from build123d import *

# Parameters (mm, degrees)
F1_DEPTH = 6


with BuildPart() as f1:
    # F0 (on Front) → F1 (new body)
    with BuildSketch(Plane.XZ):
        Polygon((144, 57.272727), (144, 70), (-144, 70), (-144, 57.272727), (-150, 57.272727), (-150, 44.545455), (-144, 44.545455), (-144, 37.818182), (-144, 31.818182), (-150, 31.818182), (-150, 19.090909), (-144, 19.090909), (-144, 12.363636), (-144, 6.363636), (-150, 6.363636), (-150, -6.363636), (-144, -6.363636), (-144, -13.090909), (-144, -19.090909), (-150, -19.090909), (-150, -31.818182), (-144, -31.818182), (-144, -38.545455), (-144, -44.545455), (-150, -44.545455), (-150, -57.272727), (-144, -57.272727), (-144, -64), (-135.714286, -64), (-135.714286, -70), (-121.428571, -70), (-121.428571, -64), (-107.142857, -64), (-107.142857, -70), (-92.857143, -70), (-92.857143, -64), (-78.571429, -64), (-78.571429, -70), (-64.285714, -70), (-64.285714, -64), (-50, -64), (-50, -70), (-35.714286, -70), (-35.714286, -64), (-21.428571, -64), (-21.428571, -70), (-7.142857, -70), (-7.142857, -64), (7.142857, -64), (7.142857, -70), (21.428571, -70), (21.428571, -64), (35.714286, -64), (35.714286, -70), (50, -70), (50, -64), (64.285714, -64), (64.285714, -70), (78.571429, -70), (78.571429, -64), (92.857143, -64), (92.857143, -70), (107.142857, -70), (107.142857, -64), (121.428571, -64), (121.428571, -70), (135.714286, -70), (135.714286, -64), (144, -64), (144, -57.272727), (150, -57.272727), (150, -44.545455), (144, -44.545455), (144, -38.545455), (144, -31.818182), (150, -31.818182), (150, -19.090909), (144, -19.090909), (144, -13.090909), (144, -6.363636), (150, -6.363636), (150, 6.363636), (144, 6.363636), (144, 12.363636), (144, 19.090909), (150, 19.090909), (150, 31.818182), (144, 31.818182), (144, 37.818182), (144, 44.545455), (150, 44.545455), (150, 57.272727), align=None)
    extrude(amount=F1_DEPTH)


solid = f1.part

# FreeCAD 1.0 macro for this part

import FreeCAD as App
import Part
import Sketcher
from FreeCAD import Vector

doc = App.newDocument("Part")
body = doc.addObject("PartDesign::Body", "Body")

sketch1 = body.newObject("Sketcher::SketchObject", "Sketch")
sketch1.AttachmentSupport = (doc.getObject("XZ_Plane"), [""])
sketch1.MapMode = "FlatFace"
sketch1.addGeometry([
    Part.LineSegment(Vector(144, 57.272727, 0), Vector(144, 70, 0)),
    Part.LineSegment(Vector(144, 70, 0), Vector(-144, 70, 0)),
    Part.LineSegment(Vector(-144, 70, 0), Vector(-144, 57.272727, 0)),
    Part.LineSegment(Vector(-144, 57.272727, 0), Vector(-150, 57.272727, 0)),
    Part.LineSegment(Vector(-150, 57.272727, 0), Vector(-150, 44.545455, 0)),
    Part.LineSegment(Vector(-150, 44.545455, 0), Vector(-144, 44.545455, 0)),
    Part.LineSegment(Vector(-144, 44.545455, 0), Vector(-144, 31.818182, 0)),
    Part.LineSegment(Vector(-144, 31.818182, 0), Vector(-150, 31.818182, 0)),
    Part.LineSegment(Vector(-150, 31.818182, 0), Vector(-150, 19.090909, 0)),
    Part.LineSegment(Vector(-150, 19.090909, 0), Vector(-144, 19.090909, 0)),
    Part.LineSegment(Vector(-144, 19.090909, 0), Vector(-144, 6.363636, 0)),
    Part.LineSegment(Vector(-144, 6.363636, 0), Vector(-150, 6.363636, 0)),
    Part.LineSegment(Vector(-150, 6.363636, 0), Vector(-150, -6.363636, 0)),
    Part.LineSegment(Vector(-150, -6.363636, 0), Vector(-144, -6.363636, 0)),
    Part.LineSegment(Vector(-144, -6.363636, 0), Vector(-144, -19.090909, 0)),
    Part.LineSegment(Vector(-144, -19.090909, 0), Vector(-150, -19.090909, 0)),
    Part.LineSegment(Vector(-150, -19.090909, 0), Vector(-150, -31.818182, 0)),
    Part.LineSegment(Vector(-150, -31.818182, 0), Vector(-144, -31.818182, 0)),
    Part.LineSegment(Vector(-144, -31.818182, 0), Vector(-144, -44.545455, 0)),
    Part.LineSegment(Vector(-144, -44.545455, 0), Vector(-150, -44.545455, 0)),
    Part.LineSegment(Vector(-150, -44.545455, 0), Vector(-150, -57.272727, 0)),
    Part.LineSegment(Vector(-150, -57.272727, 0), Vector(-144, -57.272727, 0)),
    Part.LineSegment(Vector(-144, -57.272727, 0), Vector(-144, -64, 0)),
    Part.LineSegment(Vector(-144, -64, 0), Vector(-135.714286, -64, 0)),
    Part.LineSegment(Vector(-135.714286, -64, 0), Vector(-135.714286, -70, 0)),
    Part.LineSegment(Vector(-135.714286, -70, 0), Vector(-121.428571, -70, 0)),
    Part.LineSegment(Vector(-121.428571, -70, 0), Vector(-121.428571, -64, 0)),
    Part.LineSegment(Vector(-121.428571, -64, 0), Vector(-107.142857, -64, 0)),
    Part.LineSegment(Vector(-107.142857, -64, 0), Vector(-107.142857, -70, 0)),
    Part.LineSegment(Vector(-107.142857, -70, 0), Vector(-92.857143, -70, 0)),
    Part.LineSegment(Vector(-92.857143, -70, 0), Vector(-92.857143, -64, 0)),
    Part.LineSegment(Vector(-92.857143, -64, 0), Vector(-78.571429, -64, 0)),
    Part.LineSegment(Vector(-78.571429, -64, 0), Vector(-78.571429, -70, 0)),
    Part.LineSegment(Vector(-78.571429, -70, 0), Vector(-64.285714, -70, 0)),
    Part.LineSegment(Vector(-64.285714, -70, 0), Vector(-64.285714, -64, 0)),
    Part.LineSegment(Vector(-64.285714, -64, 0), Vector(-50, -64, 0)),
    Part.LineSegment(Vector(-50, -64, 0), Vector(-50, -70, 0)),
    Part.LineSegment(Vector(-50, -70, 0), Vector(-35.714286, -70, 0)),
    Part.LineSegment(Vector(-35.714286, -70, 0), Vector(-35.714286, -64, 0)),
    Part.LineSegment(Vector(-35.714286, -64, 0), Vector(-21.428571, -64, 0)),
    Part.LineSegment(Vector(-21.428571, -64, 0), Vector(-21.428571, -70, 0)),
    Part.LineSegment(Vector(-21.428571, -70, 0), Vector(-7.142857, -70, 0)),
    Part.LineSegment(Vector(-7.142857, -70, 0), Vector(-7.142857, -64, 0)),
    Part.LineSegment(Vector(-7.142857, -64, 0), Vector(7.142857, -64, 0)),
    Part.LineSegment(Vector(7.142857, -64, 0), Vector(7.142857, -70, 0)),
    Part.LineSegment(Vector(7.142857, -70, 0), Vector(21.428571, -70, 0)),
    Part.LineSegment(Vector(21.428571, -70, 0), Vector(21.428571, -64, 0)),
    Part.LineSegment(Vector(21.428571, -64, 0), Vector(35.714286, -64, 0)),
    Part.LineSegment(Vector(35.714286, -64, 0), Vector(35.714286, -70, 0)),
    Part.LineSegment(Vector(35.714286, -70, 0), Vector(50, -70, 0)),
    Part.LineSegment(Vector(50, -70, 0), Vector(50, -64, 0)),
    Part.LineSegment(Vector(50, -64, 0), Vector(64.285714, -64, 0)),
    Part.LineSegment(Vector(64.285714, -64, 0), Vector(64.285714, -70, 0)),
    Part.LineSegment(Vector(64.285714, -70, 0), Vector(78.571429, -70, 0)),
    Part.LineSegment(Vector(78.571429, -70, 0), Vector(78.571429, -64, 0)),
    Part.LineSegment(Vector(78.571429, -64, 0), Vector(92.857143, -64, 0)),
    Part.LineSegment(Vector(92.857143, -64, 0), Vector(92.857143, -70, 0)),
    Part.LineSegment(Vector(92.857143, -70, 0), Vector(107.142857, -70, 0)),
    Part.LineSegment(Vector(107.142857, -70, 0), Vector(107.142857, -64, 0)),
    Part.LineSegment(Vector(107.142857, -64, 0), Vector(121.428571, -64, 0)),
    Part.LineSegment(Vector(121.428571, -64, 0), Vector(121.428571, -70, 0)),
    Part.LineSegment(Vector(121.428571, -70, 0), Vector(135.714286, -70, 0)),
    Part.LineSegment(Vector(135.714286, -70, 0), Vector(135.714286, -64, 0)),
    Part.LineSegment(Vector(135.714286, -64, 0), Vector(144, -64, 0)),
    Part.LineSegment(Vector(144, -64, 0), Vector(144, -57.272727, 0)),
    Part.LineSegment(Vector(144, -57.272727, 0), Vector(150, -57.272727, 0)),
    Part.LineSegment(Vector(150, -57.272727, 0), Vector(150, -44.545455, 0)),
    Part.LineSegment(Vector(150, -44.545455, 0), Vector(144, -44.545455, 0)),
    Part.LineSegment(Vector(144, -44.545455, 0), Vector(144, -31.818182, 0)),
    Part.LineSegment(Vector(144, -31.818182, 0), Vector(150, -31.818182, 0)),
    Part.LineSegment(Vector(150, -31.818182, 0), Vector(150, -19.090909, 0)),
    Part.LineSegment(Vector(150, -19.090909, 0), Vector(144, -19.090909, 0)),
    Part.LineSegment(Vector(144, -19.090909, 0), Vector(144, -6.363636, 0)),
    Part.LineSegment(Vector(144, -6.363636, 0), Vector(150, -6.363636, 0)),
    Part.LineSegment(Vector(150, -6.363636, 0), Vector(150, 6.363636, 0)),
    Part.LineSegment(Vector(150, 6.363636, 0), Vector(144, 6.363636, 0)),
    Part.LineSegment(Vector(144, 6.363636, 0), Vector(144, 19.090909, 0)),
    Part.LineSegment(Vector(144, 19.090909, 0), Vector(150, 19.090909, 0)),
    Part.LineSegment(Vector(150, 19.090909, 0), Vector(150, 31.818182, 0)),
    Part.LineSegment(Vector(150, 31.818182, 0), Vector(144, 31.818182, 0)),
    Part.LineSegment(Vector(144, 31.818182, 0), Vector(144, 44.545455, 0)),
    Part.LineSegment(Vector(144, 44.545455, 0), Vector(150, 44.545455, 0)),
    Part.LineSegment(Vector(150, 44.545455, 0), Vector(150, 57.272727, 0)),
    Part.LineSegment(Vector(150, 57.272727, 0), Vector(144, 57.272727, 0)),
], False)
sketch1.addConstraint([
    Sketcher.Constraint("Coincident", 0, 2, 1, 1),
    Sketcher.Constraint("Coincident", 1, 2, 2, 1),
    Sketcher.Constraint("Coincident", 2, 2, 3, 1),
    Sketcher.Constraint("Coincident", 3, 2, 4, 1),
    Sketcher.Constraint("Coincident", 4, 2, 5, 1),
    Sketcher.Constraint("Coincident", 5, 2, 6, 1),
    Sketcher.Constraint("Coincident", 6, 2, 7, 1),
    Sketcher.Constraint("Coincident", 7, 2, 8, 1),
    Sketcher.Constraint("Coincident", 8, 2, 9, 1),
    Sketcher.Constraint("Coincident", 9, 2, 10, 1),
    Sketcher.Constraint("Coincident", 10, 2, 11, 1),
    Sketcher.Constraint("Coincident", 11, 2, 12, 1),
    Sketcher.Constraint("Coincident", 12, 2, 13, 1),
    Sketcher.Constraint("Coincident", 13, 2, 14, 1),
    Sketcher.Constraint("Coincident", 14, 2, 15, 1),
    Sketcher.Constraint("Coincident", 15, 2, 16, 1),
    Sketcher.Constraint("Coincident", 16, 2, 17, 1),
    Sketcher.Constraint("Coincident", 17, 2, 18, 1),
    Sketcher.Constraint("Coincident", 18, 2, 19, 1),
    Sketcher.Constraint("Coincident", 19, 2, 20, 1),
    Sketcher.Constraint("Coincident", 20, 2, 21, 1),
    Sketcher.Constraint("Coincident", 21, 2, 22, 1),
    Sketcher.Constraint("Coincident", 22, 2, 23, 1),
    Sketcher.Constraint("Coincident", 23, 2, 24, 1),
    Sketcher.Constraint("Coincident", 24, 2, 25, 1),
    Sketcher.Constraint("Coincident", 25, 2, 26, 1),
    Sketcher.Constraint("Coincident", 26, 2, 27, 1),
    Sketcher.Constraint("Coincident", 27, 2, 28, 1),
    Sketcher.Constraint("Coincident", 28, 2, 29, 1),
    Sketcher.Constraint("Coincident", 29, 2, 30, 1),
    Sketcher.Constraint("Coincident", 30, 2, 31, 1),
    Sketcher.Constraint("Coincident", 31, 2, 32, 1),
    Sketcher.Constraint("Coincident", 32, 2, 33, 1),
    Sketcher.Constraint("Coincident", 33, 2, 34, 1),
    Sketcher.Constraint("Coincident", 34, 2, 35, 1),
    Sketcher.Constraint("Coincident", 35, 2, 36, 1),
    Sketcher.Constraint("Coincident", 36, 2, 37, 1),
    Sketcher.Constraint("Coincident", 37, 2, 38, 1),
    Sketcher.Constraint("Coincident", 38, 2, 39, 1),
    Sketcher.Constraint("Coincident", 39, 2, 40, 1),
    Sketcher.Constraint("Coincident", 40, 2, 41, 1),
    Sketcher.Constraint("Coincident", 41, 2, 42, 1),
    Sketcher.Constraint("Coincident", 42, 2, 43, 1),
    Sketcher.Constraint("Coincident", 43, 2, 44, 1),
    Sketcher.Constraint("Coincident", 44, 2, 45, 1),
    Sketcher.Constraint("Coincident", 45, 2, 46, 1),
    Sketcher.Constraint("Coincident", 46, 2, 47, 1),
    Sketcher.Constraint("Coincident", 47, 2, 48, 1),
    Sketcher.Constraint("Coincident", 48, 2, 49, 1),
    Sketcher.Constraint("Coincident", 49, 2, 50, 1),
    Sketcher.Constraint("Coincident", 50, 2, 51, 1),
    Sketcher.Constraint("Coincident", 51, 2, 52, 1),
    Sketcher.Constraint("Coincident", 52, 2, 53, 1),
    Sketcher.Constraint("Coincident", 53, 2, 54, 1),
    Sketcher.Constraint("Coincident", 54, 2, 55, 1),
    Sketcher.Constraint("Coincident", 55, 2, 56, 1),
    Sketcher.Constraint("Coincident", 56, 2, 57, 1),
    Sketcher.Constraint("Coincident", 57, 2, 58, 1),
    Sketcher.Constraint("Coincident", 58, 2, 59, 1),
    Sketcher.Constraint("Coincident", 59, 2, 60, 1),
    Sketcher.Constraint("Coincident", 60, 2, 61, 1),
    Sketcher.Constraint("Coincident", 61, 2, 62, 1),
    Sketcher.Constraint("Coincident", 62, 2, 63, 1),
    Sketcher.Constraint("Coincident", 63, 2, 64, 1),
    Sketcher.Constraint("Coincident", 64, 2, 65, 1),
    Sketcher.Constraint("Coincident", 65, 2, 66, 1),
    Sketcher.Constraint("Coincident", 66, 2, 67, 1),
    Sketcher.Constraint("Coincident", 67, 2, 68, 1),
    Sketcher.Constraint("Coincident", 68, 2, 69, 1),
    Sketcher.Constraint("Coincident", 69, 2, 70, 1),
    Sketcher.Constraint("Coincident", 70, 2, 71, 1),
    Sketcher.Constraint("Coincident", 71, 2, 72, 1),
    Sketcher.Constraint("Coincident", 72, 2, 73, 1),
    Sketcher.Constraint("Coincident", 73, 2, 74, 1),
    Sketcher.Constraint("Coincident", 74, 2, 75, 1),
    Sketcher.Constraint("Coincident", 75, 2, 76, 1),
    Sketcher.Constraint("Coincident", 76, 2, 77, 1),
    Sketcher.Constraint("Coincident", 77, 2, 78, 1),
    Sketcher.Constraint("Coincident", 78, 2, 79, 1),
    Sketcher.Constraint("Coincident", 79, 2, 80, 1),
    Sketcher.Constraint("Coincident", 80, 2, 81, 1),
    Sketcher.Constraint("Coincident", 81, 2, 82, 1),
    Sketcher.Constraint("Coincident", 82, 2, 83, 1),
    Sketcher.Constraint("Coincident", 83, 2, 0, 1),
    Sketcher.Constraint("Vertical", 0),
    Sketcher.Constraint("Horizontal", 1),
    Sketcher.Constraint("Vertical", 2),
    Sketcher.Constraint("Horizontal", 3),
    Sketcher.Constraint("Vertical", 4),
    Sketcher.Constraint("Horizontal", 5),
    Sketcher.Constraint("Vertical", 6),
    Sketcher.Constraint("Horizontal", 7),
    Sketcher.Constraint("Vertical", 8),
    Sketcher.Constraint("Horizontal", 9),
    Sketcher.Constraint("Vertical", 10),
    Sketcher.Constraint("Horizontal", 11),
    Sketcher.Constraint("Vertical", 12),
    Sketcher.Constraint("Horizontal", 13),
    Sketcher.Constraint("Vertical", 14),
    Sketcher.Constraint("Horizontal", 15),
    Sketcher.Constraint("Vertical", 16),
    Sketcher.Constraint("Horizontal", 17),
    Sketcher.Constraint("Vertical", 18),
    Sketcher.Constraint("Horizontal", 19),
    Sketcher.Constraint("Vertical", 20),
    Sketcher.Constraint("Horizontal", 21),
    Sketcher.Constraint("Vertical", 22),
    Sketcher.Constraint("Horizontal", 23),
    Sketcher.Constraint("Vertical", 24),
    Sketcher.Constraint("Horizontal", 25),
    Sketcher.Constraint("Vertical", 26),
    Sketcher.Constraint("Horizontal", 27),
    Sketcher.Constraint("Vertical", 28),
    Sketcher.Constraint("Horizontal", 29),
    Sketcher.Constraint("Vertical", 30),
    Sketcher.Constraint("Horizontal", 31),
    Sketcher.Constraint("Vertical", 32),
    Sketcher.Constraint("Horizontal", 33),
    Sketcher.Constraint("Vertical", 34),
    Sketcher.Constraint("Horizontal", 35),
    Sketcher.Constraint("Vertical", 36),
    Sketcher.Constraint("Horizontal", 37),
    Sketcher.Constraint("Vertical", 38),
    Sketcher.Constraint("Horizontal", 39),
    Sketcher.Constraint("Vertical", 40),
    Sketcher.Constraint("Horizontal", 41),
    Sketcher.Constraint("Vertical", 42),
    Sketcher.Constraint("Horizontal", 43),
    Sketcher.Constraint("Vertical", 44),
    Sketcher.Constraint("Horizontal", 45),
    Sketcher.Constraint("Vertical", 46),
    Sketcher.Constraint("Horizontal", 47),
    Sketcher.Constraint("Vertical", 48),
    Sketcher.Constraint("Horizontal", 49),
    Sketcher.Constraint("Vertical", 50),
    Sketcher.Constraint("Horizontal", 51),
    Sketcher.Constraint("Vertical", 52),
    Sketcher.Constraint("Horizontal", 53),
    Sketcher.Constraint("Vertical", 54),
    Sketcher.Constraint("Horizontal", 55),
    Sketcher.Constraint("Vertical", 56),
    Sketcher.Constraint("Horizontal", 57),
    Sketcher.Constraint("Vertical", 58),
    Sketcher.Constraint("Horizontal", 59),
    Sketcher.Constraint("Vertical", 60),
    Sketcher.Constraint("Horizontal", 61),
    Sketcher.Constraint("Vertical", 62),
    Sketcher.Constraint("Horizontal", 63),
    Sketcher.Constraint("Vertical", 64),
    Sketcher.Constraint("Horizontal", 65),
    Sketcher.Constraint("Vertical", 66),
    Sketcher.Constraint("Horizontal", 67),
    Sketcher.Constraint("Vertical", 68),
    Sketcher.Constraint("Horizontal", 69),
    Sketcher.Constraint("Vertical", 70),
    Sketcher.Constraint("Horizontal", 71),
    Sketcher.Constraint("Vertical", 72),
    Sketcher.Constraint("Horizontal", 73),
    Sketcher.Constraint("Vertical", 74),
    Sketcher.Constraint("Horizontal", 75),
    Sketcher.Constraint("Vertical", 76),
    Sketcher.Constraint("Horizontal", 77),
    Sketcher.Constraint("Vertical", 78),
    Sketcher.Constraint("Horizontal", 79),
    Sketcher.Constraint("Vertical", 80),
    Sketcher.Constraint("Horizontal", 81),
    Sketcher.Constraint("Vertical", 82),
    Sketcher.Constraint("Horizontal", 83),
    Sketcher.Constraint("Symmetric", 2, 2, 64, 2, -1, 1),
    Sketcher.Constraint("Symmetric", 4, 2, 66, 2, -1, 1),
    Sketcher.Constraint("Symmetric", 6, 2, 68, 2, -1, 1),
    Sketcher.Constraint("Symmetric", 8, 2, 70, 2, -1, 1),
    Sketcher.Constraint("Symmetric", 10, 2, 72, 2, -1, 1),
    Sketcher.Constraint("Symmetric", 12, 2, 74, 2, -1, 1),
    Sketcher.Constraint("Symmetric", 14, 2, 76, 2, -1, 1),
    Sketcher.Constraint("Symmetric", 16, 2, 78, 2, -1, 1),
    Sketcher.Constraint("Symmetric", 18, 2, 80, 2, -1, 1),
    Sketcher.Constraint("Symmetric", 20, 2, 82, 2, -1, 1),
    Sketcher.Constraint("Symmetric", 41, 2, 44, 2, -2),
    Sketcher.Constraint("Symmetric", 39, 2, 46, 2, -2),
    Sketcher.Constraint("Symmetric", 37, 2, 48, 2, -2),
    Sketcher.Constraint("Symmetric", 35, 2, 50, 2, -2),
    Sketcher.Constraint("Symmetric", 33, 2, 52, 2, -2),
    Sketcher.Constraint("Symmetric", 31, 2, 54, 2, -2),
    Sketcher.Constraint("Symmetric", 29, 2, 56, 2, -2),
    Sketcher.Constraint("Symmetric", 27, 2, 58, 2, -2),
    Sketcher.Constraint("Symmetric", 25, 2, 60, 2, -2),
    Sketcher.Constraint("Symmetric", 23, 2, 62, 2, -2),
    Sketcher.Constraint("Symmetric", 21, 2, 64, 2, -2),
    Sketcher.Constraint("Symmetric", 19, 2, 66, 2, -2),
    Sketcher.Constraint("Symmetric", 17, 2, 68, 2, -2),
    Sketcher.Constraint("Symmetric", 15, 2, 70, 2, -2),
    Sketcher.Constraint("Symmetric", 13, 2, 72, 2, -2),
    Sketcher.Constraint("Horizontal", 23, 2, 26, 2),
    Sketcher.Constraint("Horizontal", 25, 2, 28, 2),
    Sketcher.Constraint("Horizontal", 27, 2, 30, 2),
    Sketcher.Constraint("Horizontal", 29, 2, 32, 2),
    Sketcher.Constraint("Horizontal", 31, 2, 34, 2),
    Sketcher.Constraint("Horizontal", 33, 2, 36, 2),
    Sketcher.Constraint("Horizontal", 35, 2, 38, 2),
    Sketcher.Constraint("Horizontal", 37, 2, 40, 2),
    Sketcher.Constraint("Horizontal", 39, 2, 42, 2),
    Sketcher.Constraint("Vertical", 2, 2, 5, 2),
    Sketcher.Constraint("Vertical", 4, 2, 7, 2),
    Sketcher.Constraint("Vertical", 6, 2, 9, 2),
    Sketcher.Constraint("Vertical", 8, 2, 11, 2),
    Sketcher.Constraint("Vertical", 0, 2, 63, 2),
    Sketcher.Constraint("Equal", 25, 27),
    Sketcher.Constraint("Equal", 27, 29),
    Sketcher.Constraint("Equal", 29, 31),
    Sketcher.Constraint("Equal", 31, 33),
    Sketcher.Constraint("Equal", 33, 35),
    Sketcher.Constraint("Equal", 35, 37),
    Sketcher.Constraint("Equal", 37, 39),
    Sketcher.Constraint("Equal", 39, 41),
    Sketcher.Constraint("Equal", 41, 43),
    Sketcher.Constraint("Equal", 2, 4),
    Sketcher.Constraint("Equal", 4, 6),
    Sketcher.Constraint("Equal", 6, 8),
    Sketcher.Constraint("Equal", 8, 10),
    Sketcher.Constraint("Equal", 10, 12),
    Sketcher.Constraint("Equal", 83, 24),
    Sketcher.Constraint("DistanceX", 1, 2, 1, 1, 288.0),
    Sketcher.Constraint("DistanceX", 3, 2, 3, 1, 6.0),
    Sketcher.Constraint("DistanceY", -1, 1, 0, 2, 70.0),
    Sketcher.Constraint("DistanceY", 22, 2, -1, 1, 64.0),
    Sketcher.Constraint("DistanceX", 35, 2, -1, 1, 50.0),
])
pad1 = body.newObject("PartDesign::Pad", "Pad")
pad1.Profile = sketch1
pad1.Length = 6

doc.recompute()
